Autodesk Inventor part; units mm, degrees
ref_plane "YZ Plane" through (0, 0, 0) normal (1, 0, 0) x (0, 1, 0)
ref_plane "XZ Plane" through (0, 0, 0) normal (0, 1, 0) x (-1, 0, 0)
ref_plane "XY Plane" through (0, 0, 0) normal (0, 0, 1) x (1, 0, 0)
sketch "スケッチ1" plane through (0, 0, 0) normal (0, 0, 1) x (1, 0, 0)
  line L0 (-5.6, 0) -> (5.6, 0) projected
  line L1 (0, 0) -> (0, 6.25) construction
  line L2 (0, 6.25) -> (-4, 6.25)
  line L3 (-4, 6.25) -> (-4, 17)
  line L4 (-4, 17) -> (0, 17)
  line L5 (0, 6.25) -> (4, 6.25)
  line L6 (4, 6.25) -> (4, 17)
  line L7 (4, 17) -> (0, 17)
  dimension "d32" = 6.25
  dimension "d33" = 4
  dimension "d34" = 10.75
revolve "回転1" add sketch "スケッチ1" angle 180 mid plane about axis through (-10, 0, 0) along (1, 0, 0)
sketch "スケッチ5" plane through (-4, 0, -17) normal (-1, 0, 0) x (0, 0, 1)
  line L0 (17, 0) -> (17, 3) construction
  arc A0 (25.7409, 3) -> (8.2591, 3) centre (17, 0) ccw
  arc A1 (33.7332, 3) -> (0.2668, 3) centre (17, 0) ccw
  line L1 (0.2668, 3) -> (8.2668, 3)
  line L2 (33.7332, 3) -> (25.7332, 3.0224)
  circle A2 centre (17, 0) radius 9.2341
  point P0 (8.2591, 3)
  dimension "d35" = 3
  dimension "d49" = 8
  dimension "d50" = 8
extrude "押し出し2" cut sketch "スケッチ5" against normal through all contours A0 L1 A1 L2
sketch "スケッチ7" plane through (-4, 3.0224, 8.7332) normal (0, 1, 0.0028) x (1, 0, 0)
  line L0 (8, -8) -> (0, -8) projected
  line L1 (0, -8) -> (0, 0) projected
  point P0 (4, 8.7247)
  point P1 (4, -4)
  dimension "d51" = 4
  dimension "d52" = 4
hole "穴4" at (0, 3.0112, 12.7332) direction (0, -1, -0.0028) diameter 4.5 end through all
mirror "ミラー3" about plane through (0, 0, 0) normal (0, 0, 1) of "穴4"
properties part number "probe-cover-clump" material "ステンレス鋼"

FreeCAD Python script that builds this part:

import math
import FreeCAD as App
import Part
import Sketcher
Q = App.Units.Quantity

doc = App.newDocument("Part")
body = doc.addObject("PartDesign::Body", "Body")

# Sketch on XY plane
sketch1 = doc.addObject("Sketcher::SketchObject", "Sketch")
body.addObject(sketch1)
sketch1.AttachmentSupport = (doc.XY_Plane, [""])
sketch1.MapMode = "FlatFace"
sketch1.addGeometry(Part.LineSegment(App.Vector(-4, 6.25, 0), App.Vector(4, 6.25, 0)), False)
sketch1.addGeometry(Part.LineSegment(App.Vector(4, 6.25, 0), App.Vector(4, 17, 0)), False)
sketch1.addGeometry(Part.LineSegment(App.Vector(4, 17, 0), App.Vector(-4, 17, 0)), False)
sketch1.addGeometry(Part.LineSegment(App.Vector(-4, 17, 0), App.Vector(-4, 6.25, 0)), False)
sketch1.addConstraint(Sketcher.Constraint("Coincident", 0, 2, 1, 1))
sketch1.addConstraint(Sketcher.Constraint("Coincident", 1, 2, 2, 1))
sketch1.addConstraint(Sketcher.Constraint("Coincident", 2, 2, 3, 1))
sketch1.addConstraint(Sketcher.Constraint("Coincident", 3, 2, 0, 1))
sketch1.addConstraint(Sketcher.Constraint("Horizontal", 0))
sketch1.addConstraint(Sketcher.Constraint("Vertical", 1))
sketch1.addConstraint(Sketcher.Constraint("Horizontal", 2))
sketch1.addConstraint(Sketcher.Constraint("Vertical", 3))
sketch1.addConstraint(Sketcher.Constraint("DistanceX", -1, 1, 0, 2, 4.0))
sketch1.addConstraint(Sketcher.Constraint("DistanceX", 2, 2, -1, 1, 4.0))
sketch1.addConstraint(Sketcher.Constraint("DistanceY", 1, 1, 1, 2, 10.75))
sketch1.addConstraint(Sketcher.Constraint("DistanceY", -1, 1, 0, 2, 6.25))
revolution = doc.addObject("PartDesign::Revolution", "Revolution")
body.addObject(revolution)
revolution.Profile = sketch1
revolution.ReferenceAxis = (sketch1, ["H_Axis"])
revolution.Angle = 180
revolution.Midplane = True

# Sketch on YZ plane
sketch2 = doc.addObject("Sketcher::SketchObject", "Sketch001")
body.addObject(sketch2)
sketch2.AttachmentSupport = (doc.YZ_Plane, [""])
sketch2.MapMode = "FlatFace"
sketch2.AttachmentOffset = App.Placement(App.Vector(0, 0, -4), App.Rotation())
sketch2.addGeometry(Part.ArcOfCircle(Part.Circle(App.Vector(0, 0, 0), App.Vector(0, 0, 1), 9.241392), math.radians(-71.057057), math.radians(70.910204)), False)
sketch2.addGeometry(Part.LineSegment(App.Vector(3.0224, 8.7332, 0), App.Vector(3, 16.7332, 0)), False)
sketch2.addGeometry(Part.ArcOfCircle(Part.Circle(App.Vector(0, 0, 0), App.Vector(0, 0, 1), 16.999999), math.radians(-79.835751), math.radians(79.835751)), False)
sketch2.addGeometry(Part.LineSegment(App.Vector(3, -16.7332, 0), App.Vector(3, -8.7409, 0)), False)
sketch2.addConstraint(Sketcher.Constraint("Coincident", 0, 2, 1, 1))
sketch2.addConstraint(Sketcher.Constraint("Coincident", 1, 2, 2, 2))
sketch2.addConstraint(Sketcher.Constraint("Coincident", 2, 1, 3, 1))
sketch2.addConstraint(Sketcher.Constraint("Coincident", 3, 2, 0, 1))
sketch2.addConstraint(Sketcher.Constraint("Vertical", 3))
sketch2.addConstraint(Sketcher.Constraint("Coincident", 0, 3, -1, 1))
sketch2.addConstraint(Sketcher.Constraint("Coincident", 2, 3, -1, 1))
sketch2.addConstraint(Sketcher.Constraint("Vertical", 1, 2, 2, 1))
sketch2.addConstraint(Sketcher.Constraint("Distance", 1, 8.0))
sketch2.addConstraint(Sketcher.Constraint("DistanceX", -1, 1, 1, 2, 3.0))
sketch2.addConstraint(Sketcher.Constraint("Radius", 2, 17.0))
sketch2.addConstraint(Sketcher.Constraint("Angle", 1, Q("90.1604 deg")))
pocket1 = doc.addObject("PartDesign::Pocket", "Pocket")
body.addObject(pocket1)
pocket1.Profile = sketch2
pocket1.Type = "ThroughAll"
pocket1.Reversed = True

# Sketch on an angled plane
sketch3 = doc.addObject("Sketcher::SketchObject", "Sketch002")
body.addObject(sketch3)
sketch3.Placement = App.Placement(App.Vector(0, 3.046829, 0.008531), App.Rotation(App.Vector(0, -0.002799989, 0.99999608), App.Vector(1, 0, 0), App.Vector(0, 0.99999608, 0.002799989), "ZXY"))
sketch3.addGeometry(Part.Circle(App.Vector(12.724719, 0, 0), App.Vector(0, 0, 1), 2.25), False)
sketch3.addConstraint(Sketcher.Constraint("PointOnObject", 0, 3, -1))
sketch3.addConstraint(Sketcher.Constraint("Diameter", 0, 4.5))
sketch3.addConstraint(Sketcher.Constraint("DistanceX", -1, 1, 0, 3, 12.7247))
doc.recompute()
hole = doc.addObject("PartDesign::Hole", "Hole")
body.addObject(hole)
hole.Profile = sketch3
hole.ThreadType = "None"
hole.Diameter = 4.5
hole.DepthType = "ThroughAll"
doc.recompute()

mirrored = doc.addObject("PartDesign::Mirrored", "Mirrored")
body.addObject(mirrored)
mirrored.Originals = [hole]
mirrored.MirrorPlane = (doc.XY_Plane, [""])
body.Tip = mirrored

doc.recompute()
